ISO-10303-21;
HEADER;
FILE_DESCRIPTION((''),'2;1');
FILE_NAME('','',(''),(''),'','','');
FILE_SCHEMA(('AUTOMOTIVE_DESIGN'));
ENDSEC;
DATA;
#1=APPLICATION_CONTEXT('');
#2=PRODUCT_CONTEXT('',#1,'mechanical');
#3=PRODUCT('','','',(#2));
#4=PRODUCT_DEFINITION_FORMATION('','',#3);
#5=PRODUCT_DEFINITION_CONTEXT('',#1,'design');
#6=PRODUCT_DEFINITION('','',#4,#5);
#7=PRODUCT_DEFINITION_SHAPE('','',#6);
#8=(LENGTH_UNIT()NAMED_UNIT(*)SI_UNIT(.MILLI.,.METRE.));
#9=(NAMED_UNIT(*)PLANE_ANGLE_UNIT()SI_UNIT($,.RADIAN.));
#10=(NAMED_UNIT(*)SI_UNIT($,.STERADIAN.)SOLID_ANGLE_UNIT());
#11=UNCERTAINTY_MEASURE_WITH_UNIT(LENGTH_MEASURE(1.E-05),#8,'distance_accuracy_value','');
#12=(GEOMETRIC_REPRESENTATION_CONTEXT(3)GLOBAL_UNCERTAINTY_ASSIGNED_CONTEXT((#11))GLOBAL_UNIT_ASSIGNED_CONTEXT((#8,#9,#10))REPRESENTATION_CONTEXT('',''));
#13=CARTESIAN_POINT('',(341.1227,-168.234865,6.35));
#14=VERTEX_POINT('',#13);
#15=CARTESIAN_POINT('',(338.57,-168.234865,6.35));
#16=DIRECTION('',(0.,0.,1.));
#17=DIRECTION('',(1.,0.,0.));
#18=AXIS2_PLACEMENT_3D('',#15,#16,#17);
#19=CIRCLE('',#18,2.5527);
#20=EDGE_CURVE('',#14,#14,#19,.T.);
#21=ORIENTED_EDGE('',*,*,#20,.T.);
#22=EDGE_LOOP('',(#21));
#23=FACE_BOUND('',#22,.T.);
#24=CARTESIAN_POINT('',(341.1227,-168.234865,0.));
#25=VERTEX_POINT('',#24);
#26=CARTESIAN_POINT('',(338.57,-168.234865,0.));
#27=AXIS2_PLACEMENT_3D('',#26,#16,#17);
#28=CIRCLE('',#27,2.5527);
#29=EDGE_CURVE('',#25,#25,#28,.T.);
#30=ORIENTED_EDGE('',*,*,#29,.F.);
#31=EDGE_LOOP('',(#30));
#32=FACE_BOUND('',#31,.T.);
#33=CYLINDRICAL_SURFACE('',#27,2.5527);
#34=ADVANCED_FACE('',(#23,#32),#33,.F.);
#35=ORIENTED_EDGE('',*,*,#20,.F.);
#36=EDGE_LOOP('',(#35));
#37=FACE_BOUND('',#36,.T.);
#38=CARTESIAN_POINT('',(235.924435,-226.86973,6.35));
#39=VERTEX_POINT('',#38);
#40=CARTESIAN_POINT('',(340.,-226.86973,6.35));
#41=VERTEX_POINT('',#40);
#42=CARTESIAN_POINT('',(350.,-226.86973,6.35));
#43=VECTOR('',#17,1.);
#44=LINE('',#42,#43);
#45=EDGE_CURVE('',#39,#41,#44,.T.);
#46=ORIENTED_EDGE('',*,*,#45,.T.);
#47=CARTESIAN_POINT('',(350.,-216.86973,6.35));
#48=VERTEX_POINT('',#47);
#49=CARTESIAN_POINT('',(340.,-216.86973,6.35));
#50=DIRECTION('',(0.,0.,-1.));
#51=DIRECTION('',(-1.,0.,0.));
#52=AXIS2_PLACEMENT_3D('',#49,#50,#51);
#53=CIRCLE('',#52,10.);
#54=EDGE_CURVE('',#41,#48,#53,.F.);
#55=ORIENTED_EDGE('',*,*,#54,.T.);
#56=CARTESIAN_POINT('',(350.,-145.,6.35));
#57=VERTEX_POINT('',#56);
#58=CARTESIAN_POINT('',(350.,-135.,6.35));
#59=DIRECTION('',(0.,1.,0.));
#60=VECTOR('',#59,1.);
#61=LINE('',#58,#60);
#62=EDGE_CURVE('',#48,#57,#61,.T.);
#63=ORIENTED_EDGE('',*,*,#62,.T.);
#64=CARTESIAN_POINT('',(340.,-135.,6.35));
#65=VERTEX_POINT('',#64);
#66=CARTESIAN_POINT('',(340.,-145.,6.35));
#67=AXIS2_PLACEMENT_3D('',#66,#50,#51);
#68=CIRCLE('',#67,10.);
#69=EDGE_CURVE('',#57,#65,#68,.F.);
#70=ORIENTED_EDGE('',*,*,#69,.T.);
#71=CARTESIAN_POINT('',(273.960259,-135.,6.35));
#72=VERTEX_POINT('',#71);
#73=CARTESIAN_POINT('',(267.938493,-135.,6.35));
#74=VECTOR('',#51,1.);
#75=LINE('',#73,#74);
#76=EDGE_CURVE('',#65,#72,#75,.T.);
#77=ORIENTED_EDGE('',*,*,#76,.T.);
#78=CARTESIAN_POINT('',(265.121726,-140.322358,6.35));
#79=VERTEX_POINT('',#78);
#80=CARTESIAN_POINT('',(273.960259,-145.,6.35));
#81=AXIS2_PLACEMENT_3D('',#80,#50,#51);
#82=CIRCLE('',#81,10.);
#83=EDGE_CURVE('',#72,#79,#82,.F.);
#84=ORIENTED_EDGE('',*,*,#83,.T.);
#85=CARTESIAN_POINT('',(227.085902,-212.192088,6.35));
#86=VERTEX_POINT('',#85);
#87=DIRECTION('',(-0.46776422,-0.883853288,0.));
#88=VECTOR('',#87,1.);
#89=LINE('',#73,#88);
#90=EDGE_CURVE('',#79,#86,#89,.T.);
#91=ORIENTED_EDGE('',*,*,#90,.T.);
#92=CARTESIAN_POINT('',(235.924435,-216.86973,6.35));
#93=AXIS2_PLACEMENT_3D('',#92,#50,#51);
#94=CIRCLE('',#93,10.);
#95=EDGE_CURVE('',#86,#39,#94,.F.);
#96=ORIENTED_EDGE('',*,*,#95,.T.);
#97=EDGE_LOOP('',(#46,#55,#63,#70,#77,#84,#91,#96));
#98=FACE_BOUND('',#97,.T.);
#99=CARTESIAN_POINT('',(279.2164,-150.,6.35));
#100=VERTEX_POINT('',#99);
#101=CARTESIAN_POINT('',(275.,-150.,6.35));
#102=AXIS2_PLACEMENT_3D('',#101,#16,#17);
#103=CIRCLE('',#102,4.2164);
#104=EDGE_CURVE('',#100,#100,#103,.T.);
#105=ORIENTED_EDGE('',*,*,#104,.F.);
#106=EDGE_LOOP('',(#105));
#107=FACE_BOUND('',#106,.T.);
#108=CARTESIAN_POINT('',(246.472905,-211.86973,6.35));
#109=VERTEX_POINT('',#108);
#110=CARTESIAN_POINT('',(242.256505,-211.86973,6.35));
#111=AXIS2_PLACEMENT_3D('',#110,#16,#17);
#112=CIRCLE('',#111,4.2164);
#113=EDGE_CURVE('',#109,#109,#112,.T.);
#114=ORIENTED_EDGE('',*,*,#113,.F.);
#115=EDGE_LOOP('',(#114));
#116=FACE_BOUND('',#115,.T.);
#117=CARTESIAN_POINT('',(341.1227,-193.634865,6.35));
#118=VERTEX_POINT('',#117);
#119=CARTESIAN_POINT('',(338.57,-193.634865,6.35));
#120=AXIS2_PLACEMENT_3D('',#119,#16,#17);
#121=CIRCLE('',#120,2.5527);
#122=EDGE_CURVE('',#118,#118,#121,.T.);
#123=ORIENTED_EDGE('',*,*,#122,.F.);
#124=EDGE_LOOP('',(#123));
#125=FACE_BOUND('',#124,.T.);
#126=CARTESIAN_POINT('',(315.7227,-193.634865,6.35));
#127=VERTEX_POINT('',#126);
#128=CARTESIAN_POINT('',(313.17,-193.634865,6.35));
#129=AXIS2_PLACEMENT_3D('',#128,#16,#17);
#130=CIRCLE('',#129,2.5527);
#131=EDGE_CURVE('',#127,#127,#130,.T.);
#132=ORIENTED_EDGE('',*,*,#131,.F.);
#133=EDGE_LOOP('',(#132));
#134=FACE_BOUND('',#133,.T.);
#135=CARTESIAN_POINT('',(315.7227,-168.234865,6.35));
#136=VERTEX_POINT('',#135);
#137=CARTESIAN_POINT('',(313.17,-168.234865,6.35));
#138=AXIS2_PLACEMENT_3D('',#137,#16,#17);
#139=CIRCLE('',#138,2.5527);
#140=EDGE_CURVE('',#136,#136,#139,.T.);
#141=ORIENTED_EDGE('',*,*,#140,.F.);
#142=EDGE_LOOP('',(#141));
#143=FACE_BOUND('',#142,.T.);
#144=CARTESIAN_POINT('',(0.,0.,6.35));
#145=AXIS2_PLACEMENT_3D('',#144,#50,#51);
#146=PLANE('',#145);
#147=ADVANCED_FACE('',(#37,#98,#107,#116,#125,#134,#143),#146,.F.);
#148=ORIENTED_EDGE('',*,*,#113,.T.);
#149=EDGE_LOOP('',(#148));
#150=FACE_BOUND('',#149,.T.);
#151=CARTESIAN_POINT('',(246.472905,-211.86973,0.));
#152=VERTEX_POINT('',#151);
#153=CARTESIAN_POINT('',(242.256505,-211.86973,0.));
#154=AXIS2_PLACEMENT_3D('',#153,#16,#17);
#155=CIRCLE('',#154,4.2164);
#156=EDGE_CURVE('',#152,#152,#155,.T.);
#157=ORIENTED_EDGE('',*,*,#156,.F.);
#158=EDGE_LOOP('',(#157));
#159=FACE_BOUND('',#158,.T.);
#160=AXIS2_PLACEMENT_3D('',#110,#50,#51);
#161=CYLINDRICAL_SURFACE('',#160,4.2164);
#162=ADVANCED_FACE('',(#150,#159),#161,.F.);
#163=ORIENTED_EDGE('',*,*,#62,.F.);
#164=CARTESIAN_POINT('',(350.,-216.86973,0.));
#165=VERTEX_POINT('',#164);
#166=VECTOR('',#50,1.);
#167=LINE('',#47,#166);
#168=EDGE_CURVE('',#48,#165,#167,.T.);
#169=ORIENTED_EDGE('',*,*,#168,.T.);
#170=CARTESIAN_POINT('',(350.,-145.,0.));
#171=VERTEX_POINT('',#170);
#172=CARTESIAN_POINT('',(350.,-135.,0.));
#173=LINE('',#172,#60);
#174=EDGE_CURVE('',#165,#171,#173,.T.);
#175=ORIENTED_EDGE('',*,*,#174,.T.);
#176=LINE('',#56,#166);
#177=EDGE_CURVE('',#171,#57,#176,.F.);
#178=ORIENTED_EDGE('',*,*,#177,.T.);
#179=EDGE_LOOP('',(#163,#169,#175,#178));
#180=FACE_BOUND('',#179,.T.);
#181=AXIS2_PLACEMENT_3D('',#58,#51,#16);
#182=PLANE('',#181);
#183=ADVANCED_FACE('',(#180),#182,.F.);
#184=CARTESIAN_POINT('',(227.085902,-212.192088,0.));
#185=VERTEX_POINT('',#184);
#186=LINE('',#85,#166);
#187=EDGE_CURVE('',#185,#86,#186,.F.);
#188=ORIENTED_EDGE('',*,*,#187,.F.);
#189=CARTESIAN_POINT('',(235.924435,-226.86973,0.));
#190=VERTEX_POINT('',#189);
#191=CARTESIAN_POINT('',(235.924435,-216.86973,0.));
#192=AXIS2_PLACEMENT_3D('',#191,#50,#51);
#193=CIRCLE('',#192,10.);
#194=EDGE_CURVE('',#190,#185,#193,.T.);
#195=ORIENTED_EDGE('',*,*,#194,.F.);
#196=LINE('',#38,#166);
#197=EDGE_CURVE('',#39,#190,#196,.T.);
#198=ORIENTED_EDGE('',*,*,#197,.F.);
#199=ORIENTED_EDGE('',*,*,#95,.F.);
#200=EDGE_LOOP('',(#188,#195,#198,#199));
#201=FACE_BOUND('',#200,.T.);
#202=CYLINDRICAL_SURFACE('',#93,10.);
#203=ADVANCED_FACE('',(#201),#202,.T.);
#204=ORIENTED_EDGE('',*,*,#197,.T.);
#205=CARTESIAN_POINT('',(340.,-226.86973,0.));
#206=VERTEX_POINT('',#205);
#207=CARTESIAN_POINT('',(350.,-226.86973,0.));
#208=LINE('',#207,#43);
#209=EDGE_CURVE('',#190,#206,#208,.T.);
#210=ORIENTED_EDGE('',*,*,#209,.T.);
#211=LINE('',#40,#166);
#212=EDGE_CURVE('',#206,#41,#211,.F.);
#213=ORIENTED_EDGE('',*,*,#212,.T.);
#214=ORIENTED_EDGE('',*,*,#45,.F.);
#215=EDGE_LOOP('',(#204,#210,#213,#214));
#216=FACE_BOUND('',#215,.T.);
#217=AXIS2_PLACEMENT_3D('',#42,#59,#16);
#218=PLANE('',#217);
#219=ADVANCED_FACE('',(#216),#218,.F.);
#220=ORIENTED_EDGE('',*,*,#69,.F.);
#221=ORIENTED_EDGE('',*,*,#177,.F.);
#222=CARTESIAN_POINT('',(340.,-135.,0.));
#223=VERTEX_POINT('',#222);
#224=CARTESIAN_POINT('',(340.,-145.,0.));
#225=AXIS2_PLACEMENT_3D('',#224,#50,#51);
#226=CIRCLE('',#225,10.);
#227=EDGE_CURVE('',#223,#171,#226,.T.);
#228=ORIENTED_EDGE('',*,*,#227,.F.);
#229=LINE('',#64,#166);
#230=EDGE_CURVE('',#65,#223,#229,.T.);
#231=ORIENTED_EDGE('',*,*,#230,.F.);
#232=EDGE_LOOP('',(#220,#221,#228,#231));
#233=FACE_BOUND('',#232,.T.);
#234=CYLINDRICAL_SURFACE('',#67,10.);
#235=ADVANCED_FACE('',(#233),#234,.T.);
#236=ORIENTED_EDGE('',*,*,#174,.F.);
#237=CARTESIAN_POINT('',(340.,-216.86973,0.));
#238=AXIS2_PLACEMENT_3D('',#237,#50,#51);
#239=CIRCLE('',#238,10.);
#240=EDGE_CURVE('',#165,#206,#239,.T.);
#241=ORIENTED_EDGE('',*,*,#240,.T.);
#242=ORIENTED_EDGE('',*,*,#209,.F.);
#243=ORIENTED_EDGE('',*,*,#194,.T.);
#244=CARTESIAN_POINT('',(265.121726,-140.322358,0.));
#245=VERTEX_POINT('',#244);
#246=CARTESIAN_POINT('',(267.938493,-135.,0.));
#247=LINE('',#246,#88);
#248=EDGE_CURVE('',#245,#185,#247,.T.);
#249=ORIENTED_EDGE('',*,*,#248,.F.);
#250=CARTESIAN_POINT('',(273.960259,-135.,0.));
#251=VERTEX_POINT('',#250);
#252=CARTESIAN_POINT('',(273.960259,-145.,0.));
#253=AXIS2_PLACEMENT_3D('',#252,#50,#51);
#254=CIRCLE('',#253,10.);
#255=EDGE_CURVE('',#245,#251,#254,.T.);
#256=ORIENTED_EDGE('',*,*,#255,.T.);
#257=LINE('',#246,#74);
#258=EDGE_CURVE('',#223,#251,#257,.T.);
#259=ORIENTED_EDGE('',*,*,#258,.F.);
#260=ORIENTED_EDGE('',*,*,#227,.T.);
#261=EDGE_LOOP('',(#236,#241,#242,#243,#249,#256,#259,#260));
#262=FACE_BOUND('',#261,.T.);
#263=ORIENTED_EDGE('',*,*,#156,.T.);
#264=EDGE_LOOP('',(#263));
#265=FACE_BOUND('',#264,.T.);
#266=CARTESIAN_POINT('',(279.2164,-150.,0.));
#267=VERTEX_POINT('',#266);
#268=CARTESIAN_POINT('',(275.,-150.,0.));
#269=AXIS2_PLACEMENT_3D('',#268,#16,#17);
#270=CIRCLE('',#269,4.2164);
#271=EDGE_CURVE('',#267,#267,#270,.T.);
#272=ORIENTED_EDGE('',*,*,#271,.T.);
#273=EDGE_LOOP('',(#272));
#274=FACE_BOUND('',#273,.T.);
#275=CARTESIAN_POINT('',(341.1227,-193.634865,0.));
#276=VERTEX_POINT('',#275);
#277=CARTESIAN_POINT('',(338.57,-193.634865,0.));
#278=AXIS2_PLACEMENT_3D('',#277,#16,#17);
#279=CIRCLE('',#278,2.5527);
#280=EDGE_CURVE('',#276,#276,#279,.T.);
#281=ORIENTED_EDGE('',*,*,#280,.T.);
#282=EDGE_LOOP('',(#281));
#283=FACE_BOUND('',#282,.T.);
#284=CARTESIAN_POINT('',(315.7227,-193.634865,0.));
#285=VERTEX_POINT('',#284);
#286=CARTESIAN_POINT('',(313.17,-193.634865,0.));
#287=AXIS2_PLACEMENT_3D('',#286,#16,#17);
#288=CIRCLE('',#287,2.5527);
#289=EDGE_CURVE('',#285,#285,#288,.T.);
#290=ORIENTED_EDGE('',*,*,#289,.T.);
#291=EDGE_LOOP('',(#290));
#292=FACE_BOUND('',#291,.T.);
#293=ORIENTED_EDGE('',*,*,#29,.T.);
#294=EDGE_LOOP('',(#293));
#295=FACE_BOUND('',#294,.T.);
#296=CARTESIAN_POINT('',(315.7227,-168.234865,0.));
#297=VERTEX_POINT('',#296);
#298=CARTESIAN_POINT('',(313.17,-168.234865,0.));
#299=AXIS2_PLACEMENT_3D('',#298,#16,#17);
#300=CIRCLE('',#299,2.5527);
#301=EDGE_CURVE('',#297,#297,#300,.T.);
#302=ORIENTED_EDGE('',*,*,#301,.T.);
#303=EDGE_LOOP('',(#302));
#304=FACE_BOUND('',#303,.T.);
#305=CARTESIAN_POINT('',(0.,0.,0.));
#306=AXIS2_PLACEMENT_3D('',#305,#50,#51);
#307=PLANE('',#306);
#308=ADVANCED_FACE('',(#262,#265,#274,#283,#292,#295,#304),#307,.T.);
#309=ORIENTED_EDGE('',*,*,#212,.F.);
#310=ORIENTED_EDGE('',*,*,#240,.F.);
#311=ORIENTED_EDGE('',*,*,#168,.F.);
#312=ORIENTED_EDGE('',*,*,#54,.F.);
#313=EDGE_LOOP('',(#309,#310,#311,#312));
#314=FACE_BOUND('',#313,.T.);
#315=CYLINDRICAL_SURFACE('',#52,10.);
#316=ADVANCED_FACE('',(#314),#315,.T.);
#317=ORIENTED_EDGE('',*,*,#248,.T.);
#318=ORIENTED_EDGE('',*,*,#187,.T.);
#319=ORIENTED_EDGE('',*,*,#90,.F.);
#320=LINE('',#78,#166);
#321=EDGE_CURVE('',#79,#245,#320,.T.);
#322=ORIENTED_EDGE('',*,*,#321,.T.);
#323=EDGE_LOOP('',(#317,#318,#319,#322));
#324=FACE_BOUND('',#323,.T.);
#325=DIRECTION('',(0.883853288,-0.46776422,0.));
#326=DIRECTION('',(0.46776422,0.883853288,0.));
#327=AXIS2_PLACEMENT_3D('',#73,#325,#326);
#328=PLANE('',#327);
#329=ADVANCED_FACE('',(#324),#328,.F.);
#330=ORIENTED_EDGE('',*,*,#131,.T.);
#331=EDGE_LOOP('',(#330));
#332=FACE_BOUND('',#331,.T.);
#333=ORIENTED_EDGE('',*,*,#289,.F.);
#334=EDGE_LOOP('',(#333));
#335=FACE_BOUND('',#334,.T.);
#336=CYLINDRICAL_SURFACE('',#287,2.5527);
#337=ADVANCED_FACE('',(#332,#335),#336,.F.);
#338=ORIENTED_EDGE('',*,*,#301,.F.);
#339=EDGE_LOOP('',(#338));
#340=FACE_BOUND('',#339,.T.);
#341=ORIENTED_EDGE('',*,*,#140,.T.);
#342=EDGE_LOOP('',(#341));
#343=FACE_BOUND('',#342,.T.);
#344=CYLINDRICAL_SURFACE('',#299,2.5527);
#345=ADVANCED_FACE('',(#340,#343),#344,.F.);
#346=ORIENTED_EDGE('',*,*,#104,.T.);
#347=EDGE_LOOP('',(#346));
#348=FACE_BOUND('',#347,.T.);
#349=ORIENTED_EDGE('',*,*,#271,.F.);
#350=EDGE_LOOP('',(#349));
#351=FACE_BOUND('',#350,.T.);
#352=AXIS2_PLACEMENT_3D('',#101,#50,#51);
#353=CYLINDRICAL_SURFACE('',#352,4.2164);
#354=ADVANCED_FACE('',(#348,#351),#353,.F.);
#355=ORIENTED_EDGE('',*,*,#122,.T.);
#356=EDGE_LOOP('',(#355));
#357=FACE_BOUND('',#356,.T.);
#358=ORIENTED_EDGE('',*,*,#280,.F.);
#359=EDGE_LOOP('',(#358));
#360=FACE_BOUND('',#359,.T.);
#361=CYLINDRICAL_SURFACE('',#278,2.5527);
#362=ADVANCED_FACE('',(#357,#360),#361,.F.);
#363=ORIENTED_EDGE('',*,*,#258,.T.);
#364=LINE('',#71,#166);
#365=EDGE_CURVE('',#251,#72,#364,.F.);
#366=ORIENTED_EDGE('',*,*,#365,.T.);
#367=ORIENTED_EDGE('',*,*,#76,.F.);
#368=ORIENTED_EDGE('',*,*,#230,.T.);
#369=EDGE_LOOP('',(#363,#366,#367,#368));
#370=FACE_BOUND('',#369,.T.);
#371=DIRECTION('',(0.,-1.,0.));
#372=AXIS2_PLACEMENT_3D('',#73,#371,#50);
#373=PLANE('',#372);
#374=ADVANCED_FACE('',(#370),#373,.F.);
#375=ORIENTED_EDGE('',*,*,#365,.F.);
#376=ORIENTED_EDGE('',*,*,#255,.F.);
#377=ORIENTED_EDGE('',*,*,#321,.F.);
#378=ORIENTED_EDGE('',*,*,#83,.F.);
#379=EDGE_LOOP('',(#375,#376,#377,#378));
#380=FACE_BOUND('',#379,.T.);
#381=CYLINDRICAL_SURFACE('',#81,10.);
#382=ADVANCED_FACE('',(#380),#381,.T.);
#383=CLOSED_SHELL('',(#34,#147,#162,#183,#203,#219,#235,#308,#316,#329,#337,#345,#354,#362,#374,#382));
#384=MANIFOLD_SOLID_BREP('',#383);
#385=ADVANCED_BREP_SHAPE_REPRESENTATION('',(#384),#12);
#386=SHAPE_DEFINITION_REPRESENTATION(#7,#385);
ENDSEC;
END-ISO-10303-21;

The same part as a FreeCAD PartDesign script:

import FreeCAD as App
import Part
import Sketcher

V = App.Vector
Q = App.Units.Quantity


def edges_at(feature, points):
    """Names of the edges that pass closest to the given points."""
    edges = feature.Shape.Edges
    near = lambda p: min(range(len(edges)), key=lambda i: edges[i].distToShape(Part.Vertex(*p))[0])
    return sorted({f"Edge{near(p) + 1}" for p in points})


def add_polygon(sketch, points):
    """Adds a closed chain of lines whose ends are joined by coincident constraints."""
    first, n = sketch.GeometryCount, len(points)
    for a, b in zip(points, points[1:] + points[:1]):
        sketch.addGeometry(Part.LineSegment(App.Vector(*a, 0), App.Vector(*b, 0)), False)
    for i in range(n):
        sketch.addConstraint(Sketcher.Constraint("Coincident", first + i, 2, first + (i + 1) % n, 1))

doc = App.newDocument("Part")
params = doc.addObject("Spreadsheet::Sheet", "Params")
for row, (alias, value) in enumerate([
    ("sketch1_diameter", "0.332 in"),
    ("pad1_length", "0.25 in"),
    ("sketch2_diameter", "0.201 in"),
    ("pocket1_length", "0.25 in"),
    ("fillet_radius", "10 mm"),
], start=1):
    params.set(f"A{row}", alias)
    params.set(f"B{row}", "=" + value)
    params.setAlias(f"B{row}", alias)

body = doc.addObject("PartDesign::Body", "Body")

sketch1 = body.newObject("Sketcher::SketchObject", "Sketch")
sketch1.AttachmentSupport = (doc.getObject("XY_Plane"), [""])
sketch1.MapMode = "FlatFace"
add_polygon(sketch1, [(267.9, -135), (219.3, -226.9), (350, -226.9), (350, -135)])
sketch1.addGeometry(Part.Circle(V(242.3, -211.9, 0), V(0, 0, 1), 4.2), False)
sketch1.addGeometry(Part.Circle(V(275, -150, 0), V(0, 0, 1), 4.2), False)
sketch1.addConstraint([
    Sketcher.Constraint("Horizontal", 1),
    Sketcher.Constraint("Vertical", 2),
    Sketcher.Constraint("Horizontal", 3),
    Sketcher.Constraint("Equal", 4, 5),
    Sketcher.Constraint("Diameter", 4, Q("0.332 in")),
    Sketcher.Constraint("DistanceX", 1, 1, 1, 2, Q("130.681989 mm")),
    Sketcher.Constraint("DistanceY", 2, 1, 2, 2, Q("91.86973 mm")),
    Sketcher.Constraint("DistanceX", -1, 1, 5, 3, Q("275 mm")),
    Sketcher.Constraint("DistanceY", 5, 3, -1, 1, Q("150 mm")),
    Sketcher.Constraint("DistanceX", -1, 1, 1, 2, Q("350 mm")),
    Sketcher.Constraint("DistanceY", 2, 2, -1, 1, Q("135 mm")),
    Sketcher.Constraint("DistanceY", 0, 2, 4, 3, Q("15 mm")),
    Sketcher.Constraint("DistanceX", 3, 2, 3, 1, Q("82.061507 mm")),
    Sketcher.Constraint("DistanceX", 4, 3, 3, 2, Q("25.681989 mm")),
])
sketch1.setExpression("Constraints[8]", "Params.sketch1_diameter")
pad1 = body.newObject("PartDesign::Pad", "Pad")
pad1.Profile = sketch1
pad1.setExpression("Length", "Params.pad1_length")

sketch2 = body.newObject("Sketcher::SketchObject", "Sketch001")
sketch2.AttachmentSupport = (doc.getObject("XY_Plane"), [""])
sketch2.MapMode = "FlatFace"
sketch2.AttachmentOffset = App.Placement(V(0, 0, 0.25 * 25.4), App.Rotation())
sketch2.addGeometry([
    Part.Circle(V(313.2, -168.2, 0), V(0, 0, 1), 2.6),
    Part.Circle(V(338.6, -168.2, 0), V(0, 0, 1), 2.6),
    Part.Circle(V(313.2, -193.6, 0), V(0, 0, 1), 2.6),
    Part.Circle(V(338.6, -193.6, 0), V(0, 0, 1), 2.6),
], False)
sketch2.addConstraint([
    Sketcher.Constraint("Equal", 0, 1),
    Sketcher.Constraint("Equal", 1, 2),
    Sketcher.Constraint("Equal", 2, 3),
    Sketcher.Constraint("Horizontal", 0, 3, 1, 3),
    Sketcher.Constraint("Horizontal", 2, 3, 3, 3),
    Sketcher.Constraint("Vertical", 0, 3, 2, 3),
    Sketcher.Constraint("Vertical", 1, 3, 3, 3),
    Sketcher.Constraint("Diameter", 0, Q("0.201 in")),
    Sketcher.Constraint("DistanceX", 0, 3, 1, 3, Q("1 in")),
    Sketcher.Constraint("DistanceY", 2, 3, 0, 3, Q("1 in")),
    Sketcher.Constraint("DistanceX", -1, 1, 0, 3, Q("313.17 mm")),
    Sketcher.Constraint("DistanceY", 0, 3, -1, 1, Q("168.234865 mm")),
])
sketch2.setExpression("Constraints[7]", "Params.sketch2_diameter")
pocket1 = body.newObject("PartDesign::Pocket", "Pocket")
pocket1.Profile = sketch2
pocket1.setExpression("Length", "Params.pocket1_length")
doc.recompute()

fillet = body.newObject("PartDesign::Fillet", "Fillet")
fillet.Base = (pocket1, edges_at(pocket1, [
    (350, -135, 3.175),
    (350, -226.87, 3.175),
    (219.318, -226.87, 3.175),
    (267.938, -135, 3.175),
]))
fillet.setExpression("Radius", "Params.fillet_radius")

doc.recompute()
